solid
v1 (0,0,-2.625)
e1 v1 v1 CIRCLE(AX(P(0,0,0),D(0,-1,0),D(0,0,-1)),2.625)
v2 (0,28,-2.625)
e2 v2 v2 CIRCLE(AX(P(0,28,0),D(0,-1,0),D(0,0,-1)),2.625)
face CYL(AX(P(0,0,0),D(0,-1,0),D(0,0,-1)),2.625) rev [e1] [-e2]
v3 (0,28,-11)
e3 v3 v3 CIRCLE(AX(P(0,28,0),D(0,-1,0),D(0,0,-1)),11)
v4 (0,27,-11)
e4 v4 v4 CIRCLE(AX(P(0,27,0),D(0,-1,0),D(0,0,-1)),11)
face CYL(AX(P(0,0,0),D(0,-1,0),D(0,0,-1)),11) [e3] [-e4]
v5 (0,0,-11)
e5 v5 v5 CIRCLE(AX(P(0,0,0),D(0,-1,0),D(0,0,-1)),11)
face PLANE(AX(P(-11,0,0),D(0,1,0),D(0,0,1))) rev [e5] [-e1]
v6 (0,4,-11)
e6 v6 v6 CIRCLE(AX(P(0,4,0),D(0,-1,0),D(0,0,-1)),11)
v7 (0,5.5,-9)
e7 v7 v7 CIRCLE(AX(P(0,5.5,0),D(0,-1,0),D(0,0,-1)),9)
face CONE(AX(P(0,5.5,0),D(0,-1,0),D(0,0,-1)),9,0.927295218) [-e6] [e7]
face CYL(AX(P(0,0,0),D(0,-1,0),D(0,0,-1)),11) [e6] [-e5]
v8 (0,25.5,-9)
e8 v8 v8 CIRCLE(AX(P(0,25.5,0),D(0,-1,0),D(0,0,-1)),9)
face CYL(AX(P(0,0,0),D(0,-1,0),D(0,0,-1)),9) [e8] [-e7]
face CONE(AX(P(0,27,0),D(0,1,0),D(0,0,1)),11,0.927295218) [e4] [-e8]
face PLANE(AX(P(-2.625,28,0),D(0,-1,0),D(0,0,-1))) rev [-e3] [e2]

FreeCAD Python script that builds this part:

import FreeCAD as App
import Part
import Sketcher
from FreeCAD import Vector
Q = App.Units.Quantity


def add_polygon(sketch, points):
    """Adds a closed chain of lines whose ends are joined by coincident constraints."""
    first, n = sketch.GeometryCount, len(points)
    for a, b in zip(points, points[1:] + points[:1]):
        sketch.addGeometry(Part.LineSegment(App.Vector(*a, 0), App.Vector(*b, 0)), False)
    for i in range(n):
        sketch.addConstraint(Sketcher.Constraint("Coincident", first + i, 2, first + (i + 1) % n, 1))

doc = App.newDocument("Part")
body = doc.addObject("PartDesign::Body", "Body")

sketch1 = body.newObject("Sketcher::SketchObject", "Sketch")
sketch1.AttachmentSupport = (doc.getObject("XY_Plane"), [""])
sketch1.MapMode = "FlatFace"
add_polygon(sketch1, [(-2.6, 0), (-2.6, 28), (-11, 28), (-11, 27), (-9, 25.5), (-9, 5.5), (-11, 4), (-11, 0)])
sketch1.addConstraint([
    Sketcher.Constraint("Vertical", 0),
    Sketcher.Constraint("Horizontal", 1),
    Sketcher.Constraint("Vertical", 2),
    Sketcher.Constraint("Vertical", 4),
    Sketcher.Constraint("Vertical", 6),
    Sketcher.Constraint("Horizontal", 7),
    Sketcher.Constraint("PointOnObject", 6, 2, -1),
    Sketcher.Constraint("Vertical", 2, 2, 5, 2),
    Sketcher.Constraint("Equal", 3, 5),
    Sketcher.Constraint("DistanceY", 0, 1, 0, 2, Q("28 mm")),
    Sketcher.Constraint("DistanceY", 2, 2, 2, 1, Q("1 mm")),
    Sketcher.Constraint("DistanceY", 4, 2, 4, 1, Q("20 mm")),
    Sketcher.Constraint("DistanceY", 6, 2, 6, 1, Q("4 mm")),
    Sketcher.Constraint("DistanceX", 1, 2, -1, 1, Q("11 mm")),
    Sketcher.Constraint("DistanceX", 3, 2, -1, 1, Q("9 mm")),
    Sketcher.Constraint("DistanceX", 1, 2, 1, 1, Q("8.375 mm")),
])
revolution = body.newObject("PartDesign::Revolution", "Revolution")
revolution.Profile = sketch1
revolution.ReferenceAxis = (sketch1, ["V_Axis"])
revolution.Angle = 360

doc.recompute()
